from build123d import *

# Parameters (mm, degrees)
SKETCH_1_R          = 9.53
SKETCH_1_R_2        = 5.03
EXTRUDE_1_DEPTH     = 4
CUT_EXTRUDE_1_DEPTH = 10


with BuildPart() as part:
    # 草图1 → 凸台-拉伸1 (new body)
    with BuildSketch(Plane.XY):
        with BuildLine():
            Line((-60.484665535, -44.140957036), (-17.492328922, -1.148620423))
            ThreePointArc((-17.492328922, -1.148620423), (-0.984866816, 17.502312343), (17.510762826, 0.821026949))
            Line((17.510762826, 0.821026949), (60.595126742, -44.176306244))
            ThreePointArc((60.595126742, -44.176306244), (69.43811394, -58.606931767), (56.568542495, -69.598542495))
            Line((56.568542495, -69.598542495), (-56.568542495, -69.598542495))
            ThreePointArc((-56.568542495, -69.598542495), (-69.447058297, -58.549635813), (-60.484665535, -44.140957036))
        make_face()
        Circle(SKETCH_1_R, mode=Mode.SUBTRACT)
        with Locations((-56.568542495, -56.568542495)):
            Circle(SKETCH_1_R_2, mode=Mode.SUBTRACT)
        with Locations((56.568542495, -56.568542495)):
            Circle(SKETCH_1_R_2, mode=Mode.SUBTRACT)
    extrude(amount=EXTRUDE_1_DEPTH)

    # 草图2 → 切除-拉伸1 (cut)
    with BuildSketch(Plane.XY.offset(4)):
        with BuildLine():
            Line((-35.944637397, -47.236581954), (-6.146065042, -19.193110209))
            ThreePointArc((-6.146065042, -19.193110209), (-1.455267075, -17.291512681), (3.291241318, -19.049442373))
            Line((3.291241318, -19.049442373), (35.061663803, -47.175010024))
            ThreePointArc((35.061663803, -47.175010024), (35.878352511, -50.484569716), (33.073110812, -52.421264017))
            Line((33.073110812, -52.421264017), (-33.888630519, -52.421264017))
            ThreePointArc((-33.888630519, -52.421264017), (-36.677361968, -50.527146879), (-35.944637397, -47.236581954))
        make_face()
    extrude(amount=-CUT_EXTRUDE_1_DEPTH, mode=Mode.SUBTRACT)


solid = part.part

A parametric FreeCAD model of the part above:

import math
import FreeCAD as App
import Part
import Sketcher

V = App.Vector
Q = App.Units.Quantity

doc = App.newDocument("Part")
body = doc.addObject("PartDesign::Body", "Body")

# Sketch on XY plane
sketch1 = doc.addObject("Sketcher::SketchObject", "Sketch")
body.addObject(sketch1)
sketch1.AttachmentSupport = (doc.XY_Plane, [""])
sketch1.MapMode = "FlatFace"
sketch1.addGeometry([
    Part.LineSegment(V(-17, -1, 0), V(-60, -44, 0)),  # 0
    Part.ArcOfCircle(Part.Circle(V(-57, -57, 0), V(0, 0, 1), 13), math.radians(107), math.radians(270)),  # 1
    Part.LineSegment(V(-57, -70, 0), V(57, -70, 0)),  # 2
    Part.ArcOfCircle(Part.Circle(V(57, -57, 0), V(0, 0, 1), 13), math.radians(-90), math.radians(72)),  # 3
    Part.LineSegment(V(61, -44, 0), V(18, 1, 0)),  # 4
    Part.ArcOfCircle(Part.Circle(V(0, 0, 0), V(0, 0, 1), 18), math.radians(3), math.radians(184)),  # 5
    Part.Circle(V(57, -57, 0), V(0, 0, 1), 5),  # 6
    Part.Circle(V(-57, -57, 0), V(0, 0, 1), 5),  # 7
    Part.Circle(V(0, 0, 0), V(0, 0, 1), 10),  # 8
], False)
sketch1.addConstraint([
    Sketcher.Constraint("Coincident", 0, 2, 1, 1),
    Sketcher.Constraint("Tangent", 1, 2, 2, 1),
    Sketcher.Constraint("Tangent", 2, 2, 3, 1),
    Sketcher.Constraint("Coincident", 3, 2, 4, 1),
    Sketcher.Constraint("Coincident", 4, 2, 5, 1),
    Sketcher.Constraint("Coincident", 5, 2, 0, 1),
    Sketcher.Constraint("Horizontal", 2),
    Sketcher.Constraint("Coincident", 5, 3, -1, 1),
    Sketcher.Constraint("Coincident", 8, 3, -1, 1),
    Sketcher.Constraint("Coincident", 6, 3, 3, 3),
    Sketcher.Constraint("Coincident", 7, 3, 1, 3),
    Sketcher.Constraint("Equal", 1, 3),
    Sketcher.Constraint("Equal", 6, 7),
    Sketcher.Constraint("Diameter", 6, 10.06),
    Sketcher.Constraint("Diameter", 8, 19.06),
    Sketcher.Constraint("Angle", 0, Q("-135 deg")),
    Sketcher.Constraint("Radius", 1, 13.03),
    Sketcher.Constraint("Radius", 5, 17.53),
    Sketcher.Constraint("DistanceX", 2, 1, 2, 2, 113.137085),
    Sketcher.Constraint("DistanceX", 5, 2, -1, 1, 17.492329),
    Sketcher.Constraint("DistanceX", 0, 2, 3, 3, 117.053208),
    Sketcher.Constraint("DistanceX", 4, 2, 3, 3, 39.05778),
    Sketcher.Constraint("DistanceY", 3, 3, 4, 2, 57.389569),
    Sketcher.Constraint("Distance", 4, 62.297852),
])
pad1 = doc.addObject("PartDesign::Pad", "Pad")
body.addObject(pad1)
pad1.Profile = sketch1
pad1.Length = 4

# Sketch on XY plane
sketch2 = doc.addObject("Sketcher::SketchObject", "Sketch001")
body.addObject(sketch2)
sketch2.AttachmentSupport = (doc.XY_Plane, [""])
sketch2.MapMode = "FlatFace"
sketch2.AttachmentOffset = App.Placement(V(0, 0, 4), App.Rotation())
sketch2.addGeometry([
    Part.LineSegment(V(-6.1, -19.2, 0), V(-35.9, -47.2, 0)),  # 0
    Part.ArcOfCircle(Part.Circle(V(-33.9, -49.4, 0), V(0, 0, 1), 3), math.radians(133), math.radians(270)),  # 1
    Part.LineSegment(V(-33.9, -52.4, 0), V(33.1, -52.4, 0)),  # 2
    Part.ArcOfCircle(Part.Circle(V(33.1, -49.4, 0), V(0, 0, 1), 3), math.radians(-90), math.radians(48)),  # 3
    Part.LineSegment(V(35.1, -47.2, 0), V(3.3, -19, 0)),  # 4
    Part.ArcOfCircle(Part.Circle(V(-1.3, -24.3, 0), V(0, 0, 1), 7), math.radians(48), math.radians(133)),  # 5
], False)
sketch2.addConstraint([
    Sketcher.Constraint("Tangent", 0, 2, 1, 1),
    Sketcher.Constraint("Tangent", 1, 2, 2, 1),
    Sketcher.Constraint("Tangent", 2, 2, 3, 1),
    Sketcher.Constraint("Tangent", 3, 2, 4, 1),
    Sketcher.Constraint("Tangent", 4, 2, 5, 1),
    Sketcher.Constraint("Tangent", 5, 2, 0, 1),
    Sketcher.Constraint("Horizontal", 2),
    Sketcher.Constraint("Equal", 1, 3),
    Sketcher.Constraint("Radius", 1, 3.0),
    Sketcher.Constraint("Radius", 5, 7.0),
    Sketcher.Constraint("DistanceX", 2, 1, 2, 2, 66.961741),
    Sketcher.Constraint("DistanceY", 5, 3, -1, 1, 24.290702),
    Sketcher.Constraint("DistanceX", 1, 3, -1, 1, 33.888631),
    Sketcher.Constraint("DistanceY", 0, 2, -1, 1, 47.236582),
    Sketcher.Constraint("DistanceY", 3, 2, -1, 1, 47.17501),
])
pocket1 = doc.addObject("PartDesign::Pocket", "Pocket")
body.addObject(pocket1)
pocket1.Profile = sketch2
pocket1.Length = 10

doc.recompute()
